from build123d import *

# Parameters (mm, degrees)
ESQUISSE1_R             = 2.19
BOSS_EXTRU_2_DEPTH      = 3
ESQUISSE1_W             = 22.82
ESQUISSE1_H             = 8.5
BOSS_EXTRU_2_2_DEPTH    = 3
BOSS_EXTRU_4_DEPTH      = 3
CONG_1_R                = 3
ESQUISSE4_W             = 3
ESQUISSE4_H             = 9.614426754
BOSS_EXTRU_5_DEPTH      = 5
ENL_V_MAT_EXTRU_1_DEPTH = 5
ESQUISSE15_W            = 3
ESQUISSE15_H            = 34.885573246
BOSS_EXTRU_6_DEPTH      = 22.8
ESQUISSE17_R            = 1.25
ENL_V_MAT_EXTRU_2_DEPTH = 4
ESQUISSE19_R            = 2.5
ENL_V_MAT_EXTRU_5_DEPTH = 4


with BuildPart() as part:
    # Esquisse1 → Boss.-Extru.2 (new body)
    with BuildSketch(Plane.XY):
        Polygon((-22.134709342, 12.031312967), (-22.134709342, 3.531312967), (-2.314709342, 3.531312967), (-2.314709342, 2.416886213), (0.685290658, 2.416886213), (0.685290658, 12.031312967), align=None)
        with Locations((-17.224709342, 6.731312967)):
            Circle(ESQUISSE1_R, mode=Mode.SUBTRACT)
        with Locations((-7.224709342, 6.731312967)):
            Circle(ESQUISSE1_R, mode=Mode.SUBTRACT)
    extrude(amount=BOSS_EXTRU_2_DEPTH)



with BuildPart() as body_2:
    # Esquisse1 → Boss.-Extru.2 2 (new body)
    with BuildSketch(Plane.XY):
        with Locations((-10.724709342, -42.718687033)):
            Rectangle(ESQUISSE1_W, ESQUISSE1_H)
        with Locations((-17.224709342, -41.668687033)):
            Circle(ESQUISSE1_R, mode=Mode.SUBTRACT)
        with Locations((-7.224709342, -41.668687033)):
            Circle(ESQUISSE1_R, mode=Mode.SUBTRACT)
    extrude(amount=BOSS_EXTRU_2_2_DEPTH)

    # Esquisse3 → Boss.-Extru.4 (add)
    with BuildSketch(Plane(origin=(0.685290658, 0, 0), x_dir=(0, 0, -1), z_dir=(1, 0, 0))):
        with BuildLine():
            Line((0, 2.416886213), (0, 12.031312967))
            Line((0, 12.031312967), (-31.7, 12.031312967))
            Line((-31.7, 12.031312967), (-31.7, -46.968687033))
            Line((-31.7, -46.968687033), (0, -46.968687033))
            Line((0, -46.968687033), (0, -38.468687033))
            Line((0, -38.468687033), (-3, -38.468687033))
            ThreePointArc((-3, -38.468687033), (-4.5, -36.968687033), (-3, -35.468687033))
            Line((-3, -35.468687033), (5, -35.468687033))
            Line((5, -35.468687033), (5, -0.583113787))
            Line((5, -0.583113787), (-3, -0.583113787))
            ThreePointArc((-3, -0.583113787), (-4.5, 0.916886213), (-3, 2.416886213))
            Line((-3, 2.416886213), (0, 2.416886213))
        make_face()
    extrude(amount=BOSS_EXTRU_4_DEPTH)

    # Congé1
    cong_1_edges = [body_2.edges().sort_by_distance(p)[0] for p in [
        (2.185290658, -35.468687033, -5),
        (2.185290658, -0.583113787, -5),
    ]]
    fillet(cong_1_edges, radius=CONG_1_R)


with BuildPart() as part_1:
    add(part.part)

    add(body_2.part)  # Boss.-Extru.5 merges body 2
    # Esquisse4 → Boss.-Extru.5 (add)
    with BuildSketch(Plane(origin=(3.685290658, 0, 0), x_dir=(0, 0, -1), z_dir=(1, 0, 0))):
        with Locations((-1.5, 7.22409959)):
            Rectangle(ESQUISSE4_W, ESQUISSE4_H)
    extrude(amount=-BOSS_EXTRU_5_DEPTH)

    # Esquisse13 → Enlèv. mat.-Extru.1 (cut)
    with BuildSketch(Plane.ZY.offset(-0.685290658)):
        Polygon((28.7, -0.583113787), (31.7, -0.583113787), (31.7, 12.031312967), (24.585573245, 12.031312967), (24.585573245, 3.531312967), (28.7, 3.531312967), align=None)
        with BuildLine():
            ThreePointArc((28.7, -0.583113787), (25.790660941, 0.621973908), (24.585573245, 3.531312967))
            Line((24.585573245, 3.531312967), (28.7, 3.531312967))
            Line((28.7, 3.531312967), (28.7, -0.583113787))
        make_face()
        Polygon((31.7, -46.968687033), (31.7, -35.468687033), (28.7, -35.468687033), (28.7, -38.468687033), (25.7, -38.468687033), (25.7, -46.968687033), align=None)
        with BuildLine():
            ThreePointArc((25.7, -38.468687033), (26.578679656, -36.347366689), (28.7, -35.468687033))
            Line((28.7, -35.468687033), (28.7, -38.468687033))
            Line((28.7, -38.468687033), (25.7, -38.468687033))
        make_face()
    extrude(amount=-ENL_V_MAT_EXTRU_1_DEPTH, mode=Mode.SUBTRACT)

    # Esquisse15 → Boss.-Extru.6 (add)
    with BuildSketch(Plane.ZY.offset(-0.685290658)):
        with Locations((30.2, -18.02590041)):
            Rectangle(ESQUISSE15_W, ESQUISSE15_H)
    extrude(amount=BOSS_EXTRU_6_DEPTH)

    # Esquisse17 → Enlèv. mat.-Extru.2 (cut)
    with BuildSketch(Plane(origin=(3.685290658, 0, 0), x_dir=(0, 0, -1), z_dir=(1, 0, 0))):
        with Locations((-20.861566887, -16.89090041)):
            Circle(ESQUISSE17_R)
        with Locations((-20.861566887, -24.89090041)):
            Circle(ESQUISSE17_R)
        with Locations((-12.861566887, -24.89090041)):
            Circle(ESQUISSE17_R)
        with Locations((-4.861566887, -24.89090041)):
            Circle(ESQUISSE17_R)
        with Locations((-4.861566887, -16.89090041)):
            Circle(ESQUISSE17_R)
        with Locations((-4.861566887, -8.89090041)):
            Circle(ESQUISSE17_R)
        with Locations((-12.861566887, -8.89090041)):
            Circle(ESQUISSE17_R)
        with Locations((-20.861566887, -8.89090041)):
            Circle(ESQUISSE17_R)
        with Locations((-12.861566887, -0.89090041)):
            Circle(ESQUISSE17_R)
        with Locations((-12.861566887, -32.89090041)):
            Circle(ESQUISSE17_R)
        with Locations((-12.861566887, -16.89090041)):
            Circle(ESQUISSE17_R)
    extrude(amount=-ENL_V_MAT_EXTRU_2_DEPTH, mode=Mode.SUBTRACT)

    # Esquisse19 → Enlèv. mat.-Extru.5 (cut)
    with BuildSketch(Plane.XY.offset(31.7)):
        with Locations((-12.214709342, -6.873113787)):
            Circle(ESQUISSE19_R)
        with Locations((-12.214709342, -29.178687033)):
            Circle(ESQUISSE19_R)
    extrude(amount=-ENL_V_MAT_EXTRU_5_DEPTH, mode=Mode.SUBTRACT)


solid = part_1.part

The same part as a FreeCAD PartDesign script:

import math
import FreeCAD as App
import Part
import Sketcher
from FreeCAD import Vector


def edges_at(feature, points):
    """Names of the edges that pass closest to the given points."""
    edges = feature.Shape.Edges
    near = lambda p: min(range(len(edges)), key=lambda i: edges[i].distToShape(Part.Vertex(*p))[0])
    return sorted({f"Edge{near(p) + 1}" for p in points})

doc = App.newDocument("Part")
params = doc.addObject("Spreadsheet::Sheet", "Params")
for row, (alias, value) in enumerate([
    ("sketch1_diameter", "4.38 mm"),
    ("sketch1_width", "3 mm"),
    ("sketch1_height", "8.5 mm"),
    ("sketch1_width2", "19.82 mm"),
    ("pad1_length", "3 mm"),
    ("sketch2_diameter", "4.38 mm"),
    ("sketch2_height", "8.5 mm"),
    ("sketch2_width", "22.82 mm"),
    ("pad2_length", "3 mm"),
    ("sketch3_radius", "1.5 mm"),
    ("sketch3_width", "59 mm"),
    ("sketch3_height", "3 mm"),
    ("sketch3_height2", "8 mm"),
    ("sketch3_width2", "8.5 mm"),
    ("pad3_length", "3 mm"),
    ("fillet_radius", "3 mm"),
    ("sketch4_height", "3 mm"),
    ("pad4_length", "5 mm"),
    ("sketch5_radius", "3 mm"),
    ("sketch5_height", "3 mm"),
    ("sketch5_width", "8.5 mm"),
    ("pocket1_length", "5 mm"),
    ("sketch6_height", "3 mm"),
    ("pad5_length", "22.8 mm"),
    ("sketch7_diameter", "2.5 mm"),
    ("pocket2_length", "4 mm"),
    ("sketch8_diameter", "5 mm"),
    ("pocket3_length", "4 mm"),
], start=1):
    params.set(f"A{row}", alias)
    params.set(f"B{row}", "=" + value)
    params.setAlias(f"B{row}", alias)

body = doc.addObject("PartDesign::Body", "Body")

# Sketch on XY plane
sketch1 = body.newObject("Sketcher::SketchObject", "Sketch")
sketch1.AttachmentSupport = (doc.getObject("XY_Plane"), [""])
sketch1.MapMode = "FlatFace"
sketch1.addGeometry([
    Part.LineSegment(Vector(-22.1, 12, 0), Vector(-22.1, 3.5, 0)),  # 0
    Part.LineSegment(Vector(-22.1, 3.5, 0), Vector(-2.3, 3.5, 0)),  # 1
    Part.LineSegment(Vector(-2.3, 3.5, 0), Vector(-2.3, 2.4, 0)),  # 2
    Part.LineSegment(Vector(-2.3, 2.4, 0), Vector(0.7, 2.4, 0)),  # 3
    Part.LineSegment(Vector(0.7, 2.4, 0), Vector(0.7, 12, 0)),  # 4
    Part.LineSegment(Vector(0.7, 12, 0), Vector(-22.1, 12, 0)),  # 5
    Part.Circle(Vector(-17.2, 6.7, 0), Vector(0, 0, 1), 2.2),  # 6
    Part.Circle(Vector(-7.2, 6.7, 0), Vector(0, 0, 1), 2.2),  # 7
], False)
sketch1.addConstraint([
    Sketcher.Constraint("Coincident", 0, 2, 1, 1),
    Sketcher.Constraint("Coincident", 1, 2, 2, 1),
    Sketcher.Constraint("Coincident", 2, 2, 3, 1),
    Sketcher.Constraint("Coincident", 3, 2, 4, 1),
    Sketcher.Constraint("Coincident", 4, 2, 5, 1),
    Sketcher.Constraint("Coincident", 5, 2, 0, 1),
    Sketcher.Constraint("Vertical", 0),
    Sketcher.Constraint("Horizontal", 1),
    Sketcher.Constraint("Vertical", 2),
    Sketcher.Constraint("Horizontal", 3),
    Sketcher.Constraint("Vertical", 4),
    Sketcher.Constraint("Horizontal", 5),
    Sketcher.Constraint("Equal", 6, 7),
    Sketcher.Constraint("Horizontal", 6, 3, 7, 3),
    Sketcher.Constraint("Diameter", 6, 4.38),
    Sketcher.Constraint("DistanceX", 3, 1, 3, 2, 3.0),
    Sketcher.Constraint("DistanceY", 0, 2, 0, 1, 8.5),
    Sketcher.Constraint("DistanceX", 6, 3, 7, 3, 10.0),
    Sketcher.Constraint("DistanceX", 1, 1, 1, 2, 19.82),
    Sketcher.Constraint("DistanceY", 0, 2, 6, 3, 3.2),
    Sketcher.Constraint("DistanceX", 0, 2, 6, 3, 4.91),
    Sketcher.Constraint("DistanceY", 2, 2, 2, 1, 1.114427),
    Sketcher.Constraint("DistanceX", 6, 3, -1, 1, 17.224709),
    Sketcher.Constraint("DistanceY", -1, 1, 6, 3, 6.731313),
])
sketch1.setExpression("Constraints[14]", "Params.sketch1_diameter")
sketch1.setExpression("Constraints[15]", "Params.sketch1_width")
sketch1.setExpression("Constraints[16]", "Params.sketch1_height")
sketch1.setExpression("Constraints[18]", "Params.sketch1_width2")
pad1 = body.newObject("PartDesign::Pad", "Pad")
pad1.Profile = sketch1
pad1.setExpression("Length", "Params.pad1_length")
body2 = doc.addObject("PartDesign::Body", "Body001")

# Sketch on XY plane
sketch2 = body2.newObject("Sketcher::SketchObject", "Sketch001")
sketch2.AttachmentSupport = (doc.getObject("XY_Plane001"), [""])
sketch2.MapMode = "FlatFace"
sketch2.addGeometry([
    Part.LineSegment(Vector(-22.1, -38.5, 0), Vector(-22.1, -47, 0)),  # 0
    Part.LineSegment(Vector(-22.1, -47, 0), Vector(0.7, -47, 0)),  # 1
    Part.LineSegment(Vector(0.7, -47, 0), Vector(0.7, -38.5, 0)),  # 2
    Part.LineSegment(Vector(0.7, -38.5, 0), Vector(-22.1, -38.5, 0)),  # 3
    Part.Circle(Vector(-17.2, -41.7, 0), Vector(0, 0, 1), 2.2),  # 4
    Part.Circle(Vector(-7.2, -41.7, 0), Vector(0, 0, 1), 2.2),  # 5
], False)
sketch2.addConstraint([
    Sketcher.Constraint("Coincident", 0, 2, 1, 1),
    Sketcher.Constraint("Coincident", 1, 2, 2, 1),
    Sketcher.Constraint("Coincident", 2, 2, 3, 1),
    Sketcher.Constraint("Coincident", 3, 2, 0, 1),
    Sketcher.Constraint("Vertical", 0),
    Sketcher.Constraint("Horizontal", 1),
    Sketcher.Constraint("Vertical", 2),
    Sketcher.Constraint("Horizontal", 3),
    Sketcher.Constraint("Equal", 4, 5),
    Sketcher.Constraint("Horizontal", 4, 3, 5, 3),
    Sketcher.Constraint("Diameter", 4, 4.38),
    Sketcher.Constraint("DistanceY", 0, 2, 0, 1, 8.5),
    Sketcher.Constraint("DistanceX", 4, 3, 5, 3, 10.0),
    Sketcher.Constraint("DistanceX", 1, 1, 1, 2, 22.82),
    Sketcher.Constraint("DistanceY", 0, 2, 4, 3, 5.3),
    Sketcher.Constraint("DistanceX", 0, 2, 4, 3, 4.91),
    Sketcher.Constraint("DistanceX", 4, 3, -1, 1, 17.224709),
    Sketcher.Constraint("DistanceY", 4, 3, -1, 1, 41.668687),
])
sketch2.setExpression("Constraints[10]", "Params.sketch2_diameter")
sketch2.setExpression("Constraints[11]", "Params.sketch2_height")
sketch2.setExpression("Constraints[13]", "Params.sketch2_width")
pad2 = body2.newObject("PartDesign::Pad", "Pad001")
pad2.Profile = sketch2
pad2.setExpression("Length", "Params.pad2_length")

# Sketch on YZ plane
sketch3 = body2.newObject("Sketcher::SketchObject", "Sketch002")
sketch3.AttachmentSupport = (doc.getObject("YZ_Plane001"), [""])
sketch3.MapMode = "FlatFace"
sketch3.AttachmentOffset = App.Placement(Vector(0, 0, 0.685291), App.Rotation())
sketch3.addGeometry([
    Part.LineSegment(Vector(2.4, 0, 0), Vector(12, 0, 0)),  # 0
    Part.LineSegment(Vector(12, 0, 0), Vector(12, 31.7, 0)),  # 1
    Part.LineSegment(Vector(12, 31.7, 0), Vector(-47, 31.7, 0)),  # 2
    Part.LineSegment(Vector(-47, 31.7, 0), Vector(-47, 0, 0)),  # 3
    Part.LineSegment(Vector(-47, 0, 0), Vector(-38.5, 0, 0)),  # 4
    Part.LineSegment(Vector(-38.5, 0, 0), Vector(-38.5, 3, 0)),  # 5
    Part.ArcOfCircle(Part.Circle(Vector(-37, 3, 0), Vector(0, 0, 1), 1.5), math.radians(0), math.radians(180)),  # 6
    Part.LineSegment(Vector(-35.5, 3, 0), Vector(-35.5, -5, 0)),  # 7
    Part.LineSegment(Vector(-35.5, -5, 0), Vector(-0.6, -5, 0)),  # 8
    Part.LineSegment(Vector(-0.6, -5, 0), Vector(-0.6, 3, 0)),  # 9
    Part.ArcOfCircle(Part.Circle(Vector(0.9, 3, 0), Vector(0, 0, 1), 1.5), math.radians(0), math.radians(180)),  # 10
    Part.LineSegment(Vector(2.4, 3, 0), Vector(2.4, 0, 0)),  # 11
], False)
sketch3.addConstraint([
    Sketcher.Constraint("Coincident", 0, 2, 1, 1),
    Sketcher.Constraint("Coincident", 1, 2, 2, 1),
    Sketcher.Constraint("Coincident", 2, 2, 3, 1),
    Sketcher.Constraint("Coincident", 3, 2, 4, 1),
    Sketcher.Constraint("Coincident", 4, 2, 5, 1),
    Sketcher.Constraint("Tangent", 5, 2, 6, 2),
    Sketcher.Constraint("Tangent", 6, 1, 7, 1),
    Sketcher.Constraint("Coincident", 7, 2, 8, 1),
    Sketcher.Constraint("Coincident", 8, 2, 9, 1),
    Sketcher.Constraint("Tangent", 9, 2, 10, 2),
    Sketcher.Constraint("Tangent", 10, 1, 11, 1),
    Sketcher.Constraint("Coincident", 11, 2, 0, 1),
    Sketcher.Constraint("Horizontal", 0),
    Sketcher.Constraint("Vertical", 1),
    Sketcher.Constraint("Horizontal", 2),
    Sketcher.Constraint("Vertical", 3),
    Sketcher.Constraint("Horizontal", 4),
    Sketcher.Constraint("Vertical", 5),
    Sketcher.Constraint("Vertical", 7),
    Sketcher.Constraint("Horizontal", 8),
    Sketcher.Constraint("Vertical", 9),
    Sketcher.Constraint("Vertical", 11),
    Sketcher.Constraint("Equal", 6, 10),
    Sketcher.Constraint("PointOnObject", 0, 2, -1),
    Sketcher.Constraint("PointOnObject", 3, 2, -1),
    Sketcher.Constraint("Horizontal", 6, 3, 10, 3),
    Sketcher.Constraint("Radius", 6, 1.5),
    Sketcher.Constraint("DistanceX", 2, 2, 2, 1, 59.0),
    Sketcher.Constraint("DistanceY", 5, 1, 5, 2, 3.0),
    Sketcher.Constraint("DistanceY", 7, 2, 7, 1, 8.0),
    Sketcher.Constraint("DistanceX", 4, 1, 4, 2, 8.5),
    Sketcher.Constraint("DistanceY", 1, 1, 1, 2, 31.7),
    Sketcher.Constraint("DistanceX", 0, 1, 0, 2, 9.614427),
    Sketcher.Constraint("DistanceX", 6, 3, -1, 1, 36.968687),
])
sketch3.setExpression("Constraints[26]", "Params.sketch3_radius")
sketch3.setExpression("Constraints[27]", "Params.sketch3_width")
sketch3.setExpression("Constraints[28]", "Params.sketch3_height")
sketch3.setExpression("Constraints[29]", "Params.sketch3_height2")
sketch3.setExpression("Constraints[30]", "Params.sketch3_width2")
pad3 = body2.newObject("PartDesign::Pad", "Pad002")
pad3.Profile = sketch3
pad3.setExpression("Length", "Params.pad3_length")
doc.recompute()

fillet = body2.newObject("PartDesign::Fillet", "Fillet")
fillet.Base = (pad3, edges_at(pad3, [(2.185, -35.469, -5), (2.185, -0.583, -5)]))
fillet.setExpression("Radius", "Params.fillet_radius")
doc.recompute()

boolean = body.newObject("PartDesign::Boolean", "Boolean")
boolean.Type = "Fuse"
boolean.addObjects([body2])

# Sketch on YZ plane
sketch4 = body.newObject("Sketcher::SketchObject", "Sketch003")
sketch4.AttachmentSupport = (doc.getObject("YZ_Plane"), [""])
sketch4.MapMode = "FlatFace"
sketch4.AttachmentOffset = App.Placement(Vector(0, 0, 3.685291), App.Rotation())
sketch4.addGeometry([
    Part.LineSegment(Vector(12, 3, 0), Vector(2.4, 3, 0)),
    Part.LineSegment(Vector(2.4, 3, 0), Vector(2.4, 0, 0)),
    Part.LineSegment(Vector(2.4, 0, 0), Vector(12, 0, 0)),
    Part.LineSegment(Vector(12, 0, 0), Vector(12, 3, 0)),
], False)
sketch4.addConstraint([
    Sketcher.Constraint("Coincident", 0, 2, 1, 1),
    Sketcher.Constraint("Coincident", 1, 2, 2, 1),
    Sketcher.Constraint("Coincident", 2, 2, 3, 1),
    Sketcher.Constraint("Coincident", 3, 2, 0, 1),
    Sketcher.Constraint("Horizontal", 0),
    Sketcher.Constraint("Vertical", 1),
    Sketcher.Constraint("Horizontal", 2),
    Sketcher.Constraint("Vertical", 3),
    Sketcher.Constraint("PointOnObject", 1, 2, -1),
    Sketcher.Constraint("DistanceY", 1, 2, 1, 1, 3.0),
    Sketcher.Constraint("DistanceX", 0, 2, 0, 1, 9.614427),
    Sketcher.Constraint("DistanceX", -1, 1, 0, 2, 2.416886),
])
sketch4.setExpression("Constraints[9]", "Params.sketch4_height")
pad4 = body.newObject("PartDesign::Pad", "Pad003")
pad4.Profile = sketch4
pad4.setExpression("Length", "Params.pad4_length")
pad4.Reversed = True

# Sketch on YZ plane
sketch5 = body.newObject("Sketcher::SketchObject", "Sketch004")
sketch5.AttachmentSupport = (doc.getObject("YZ_Plane"), [""])
sketch5.MapMode = "FlatFace"
sketch5.AttachmentOffset = App.Placement(Vector(0, 0, 0.685291), App.Rotation())
sketch5.addGeometry([
    Part.LineSegment(Vector(-0.6, 28.7, 0), Vector(-0.6, 31.7, 0)),  # 0
    Part.LineSegment(Vector(-0.6, 31.7, 0), Vector(12, 31.7, 0)),  # 1
    Part.LineSegment(Vector(12, 31.7, 0), Vector(12, 24.6, 0)),  # 2
    Part.LineSegment(Vector(12, 24.6, 0), Vector(3.5, 24.6, 0)),  # 3
    Part.ArcOfCircle(Part.Circle(Vector(3.5, 28.7, 0), Vector(0, 0, 1), 4.1), math.radians(180), math.radians(270)),  # 4
    Part.LineSegment(Vector(-47, 31.7, 0), Vector(-35.5, 31.7, 0)),  # 5
    Part.LineSegment(Vector(-35.5, 31.7, 0), Vector(-35.5, 28.7, 0)),  # 6
    Part.ArcOfCircle(Part.Circle(Vector(-38.5, 28.7, 0), Vector(0, 0, 1), 3), math.radians(-90), math.radians(0)),  # 7
    Part.LineSegment(Vector(-38.5, 25.7, 0), Vector(-47, 25.7, 0)),  # 8
    Part.LineSegment(Vector(-47, 25.7, 0), Vector(-47, 31.7, 0)),  # 9
], False)
sketch5.addConstraint([
    Sketcher.Constraint("Coincident", 0, 2, 1, 1),
    Sketcher.Constraint("Coincident", 1, 2, 2, 1),
    Sketcher.Constraint("Coincident", 2, 2, 3, 1),
    Sketcher.Constraint("Tangent", 3, 2, 4, 2),
    Sketcher.Constraint("Tangent", 4, 1, 0, 1),
    Sketcher.Constraint("Coincident", 5, 2, 6, 1),
    Sketcher.Constraint("Tangent", 6, 2, 7, 2),
    Sketcher.Constraint("Tangent", 7, 1, 8, 1),
    Sketcher.Constraint("Coincident", 8, 2, 9, 1),
    Sketcher.Constraint("Coincident", 9, 2, 5, 1),
    Sketcher.Constraint("Vertical", 0),
    Sketcher.Constraint("Horizontal", 1),
    Sketcher.Constraint("Vertical", 2),
    Sketcher.Constraint("Horizontal", 3),
    Sketcher.Constraint("Horizontal", 5),
    Sketcher.Constraint("Vertical", 6),
    Sketcher.Constraint("Horizontal", 8),
    Sketcher.Constraint("Vertical", 9),
    Sketcher.Constraint("Horizontal", 4, 3, 7, 3),
    Sketcher.Constraint("Horizontal", 1, 2, 5, 2),
    Sketcher.Constraint("Equal", 3, 8),
    Sketcher.Constraint("Radius", 7, 3.0),
    Sketcher.Constraint("DistanceY", 0, 1, 0, 2, 3.0),
    Sketcher.Constraint("DistanceX", 3, 2, 3, 1, 8.5),
    Sketcher.Constraint("DistanceX", 7, 3, 4, 3, 42.0),
    Sketcher.Constraint("DistanceY", -1, 1, 4, 3, 28.7),
    Sketcher.Constraint("Radius", 4, 4.114427),
    Sketcher.Constraint("DistanceX", -1, 1, 4, 3, 3.531313),
])
sketch5.setExpression("Constraints[21]", "Params.sketch5_radius")
sketch5.setExpression("Constraints[22]", "Params.sketch5_height")
sketch5.setExpression("Constraints[23]", "Params.sketch5_width")
pocket1 = body.newObject("PartDesign::Pocket", "Pocket")
pocket1.Profile = sketch5
pocket1.setExpression("Length", "Params.pocket1_length")
pocket1.Reversed = True

# Sketch on YZ plane
sketch6 = body.newObject("Sketcher::SketchObject", "Sketch005")
sketch6.AttachmentSupport = (doc.getObject("YZ_Plane"), [""])
sketch6.MapMode = "FlatFace"
sketch6.AttachmentOffset = App.Placement(Vector(0, 0, 0.685291), App.Rotation())
sketch6.addGeometry([
    Part.LineSegment(Vector(-0.6, 28.7, 0), Vector(-35.5, 28.7, 0)),
    Part.LineSegment(Vector(-35.5, 28.7, 0), Vector(-35.5, 31.7, 0)),
    Part.LineSegment(Vector(-35.5, 31.7, 0), Vector(-0.6, 31.7, 0)),
    Part.LineSegment(Vector(-0.6, 31.7, 0), Vector(-0.6, 28.7, 0)),
], False)
sketch6.addConstraint([
    Sketcher.Constraint("Coincident", 0, 2, 1, 1),
    Sketcher.Constraint("Coincident", 1, 2, 2, 1),
    Sketcher.Constraint("Coincident", 2, 2, 3, 1),
    Sketcher.Constraint("Coincident", 3, 2, 0, 1),
    Sketcher.Constraint("Horizontal", 0),
    Sketcher.Constraint("Vertical", 1),
    Sketcher.Constraint("Horizontal", 2),
    Sketcher.Constraint("Vertical", 3),
    Sketcher.Constraint("DistanceY", 1, 1, 1, 2, 3.0),
    Sketcher.Constraint("DistanceY", -1, 1, 0, 2, 28.7),
    Sketcher.Constraint("DistanceX", 0, 2, 0, 1, 34.885573),
    Sketcher.Constraint("DistanceX", 0, 2, -1, 1, 35.468687),
])
sketch6.setExpression("Constraints[8]", "Params.sketch6_height")
pad5 = body.newObject("PartDesign::Pad", "Pad004")
pad5.Profile = sketch6
pad5.setExpression("Length", "Params.pad5_length")
pad5.Reversed = True

# Sketch on YZ plane
sketch7 = body.newObject("Sketcher::SketchObject", "Sketch006")
sketch7.AttachmentSupport = (doc.getObject("YZ_Plane"), [""])
sketch7.MapMode = "FlatFace"
sketch7.AttachmentOffset = App.Placement(Vector(0, 0, 3.685291), App.Rotation())
sketch7.addGeometry([
    Part.Circle(Vector(-16.9, 20.9, 0), Vector(0, 0, 1), 1.2),  # 0
    Part.Circle(Vector(-24.9, 20.9, 0), Vector(0, 0, 1), 1.2),  # 1
    Part.Circle(Vector(-24.9, 12.9, 0), Vector(0, 0, 1), 1.2),  # 2
    Part.Circle(Vector(-24.9, 4.9, 0), Vector(0, 0, 1), 1.2),  # 3
    Part.Circle(Vector(-16.9, 4.9, 0), Vector(0, 0, 1), 1.2),  # 4
    Part.Circle(Vector(-8.9, 4.9, 0), Vector(0, 0, 1), 1.2),  # 5
    Part.Circle(Vector(-8.9, 12.9, 0), Vector(0, 0, 1), 1.2),  # 6
    Part.Circle(Vector(-8.9, 20.9, 0), Vector(0, 0, 1), 1.2),  # 7
    Part.Circle(Vector(-0.9, 12.9, 0), Vector(0, 0, 1), 1.2),  # 8
    Part.Circle(Vector(-32.9, 12.9, 0), Vector(0, 0, 1), 1.2),  # 9
    Part.Circle(Vector(-16.9, 12.9, 0), Vector(0, 0, 1), 1.2),  # 10
], False)
sketch7.addConstraint([
    Sketcher.Constraint("Equal", 0, 1),
    Sketcher.Constraint("Equal", 1, 2),
    Sketcher.Constraint("Equal", 2, 3),
    Sketcher.Constraint("Equal", 3, 4),
    Sketcher.Constraint("Equal", 4, 5),
    Sketcher.Constraint("Equal", 5, 6),
    Sketcher.Constraint("Equal", 6, 7),
    Sketcher.Constraint("Equal", 7, 8),
    Sketcher.Constraint("Equal", 8, 9),
    Sketcher.Constraint("Equal", 9, 10),
    Sketcher.Constraint("Horizontal", 0, 3, 1, 3),
    Sketcher.Constraint("Horizontal", 3, 3, 4, 3),
    Sketcher.Constraint("Horizontal", 4, 3, 5, 3),
    Sketcher.Constraint("Horizontal", 2, 3, 6, 3),
    Sketcher.Constraint("Horizontal", 1, 3, 7, 3),
    Sketcher.Constraint("Horizontal", 6, 3, 8, 3),
    Sketcher.Constraint("Horizontal", 8, 3, 9, 3),
    Sketcher.Constraint("Horizontal", 9, 3, 10, 3),
    Sketcher.Constraint("Vertical", 1, 3, 2, 3),
    Sketcher.Constraint("Vertical", 2, 3, 3, 3),
    Sketcher.Constraint("Vertical", 0, 3, 4, 3),
    Sketcher.Constraint("Vertical", 5, 3, 6, 3),
    Sketcher.Constraint("Vertical", 6, 3, 7, 3),
    Sketcher.Constraint("Vertical", 4, 3, 10, 3),
    Sketcher.Constraint("Diameter", 0, 2.5),
    Sketcher.Constraint("DistanceX", 1, 3, 0, 3, 8.0),
    Sketcher.Constraint("DistanceY", 2, 3, 1, 3, 8.0),
    Sketcher.Constraint("DistanceY", 3, 3, 2, 3, 8.0),
    Sketcher.Constraint("DistanceX", 4, 3, 5, 3, 8.0),
    Sketcher.Constraint("DistanceX", 6, 3, 8, 3, 8.0),
    Sketcher.Constraint("DistanceX", 9, 3, 2, 3, 8.0),
    Sketcher.Constraint("DistanceX", 0, 3, -1, 1, 16.8909),
    Sketcher.Constraint("DistanceY", -1, 1, 0, 3, 20.861567),
])
sketch7.setExpression("Constraints[24]", "Params.sketch7_diameter")
pocket2 = body.newObject("PartDesign::Pocket", "Pocket001")
pocket2.Profile = sketch7
pocket2.setExpression("Length", "Params.pocket2_length")

# Sketch on XY plane
sketch8 = body.newObject("Sketcher::SketchObject", "Sketch007")
sketch8.AttachmentSupport = (doc.getObject("XY_Plane"), [""])
sketch8.MapMode = "FlatFace"
sketch8.AttachmentOffset = App.Placement(Vector(0, 0, 31.7), App.Rotation())
sketch8.addGeometry([
    Part.Circle(Vector(-12.2, -6.9, 0), Vector(0, 0, 1), 2.5),
    Part.Circle(Vector(-12.2, -29.2, 0), Vector(0, 0, 1), 2.5),
], False)
sketch8.addConstraint([
    Sketcher.Constraint("Equal", 0, 1),
    Sketcher.Constraint("Vertical", 0, 3, 1, 3),
    Sketcher.Constraint("Diameter", 0, 5.0),
    Sketcher.Constraint("DistanceX", 0, 3, -1, 1, 12.214709),
    Sketcher.Constraint("DistanceY", 0, 3, -1, 1, 6.873114),
    Sketcher.Constraint("DistanceY", 1, 3, -1, 1, 29.178687),
])
sketch8.setExpression("Constraints[2]", "Params.sketch8_diameter")
pocket3 = body.newObject("PartDesign::Pocket", "Pocket002")
pocket3.Profile = sketch8
pocket3.setExpression("Length", "Params.pocket3_length")

doc.recompute()
